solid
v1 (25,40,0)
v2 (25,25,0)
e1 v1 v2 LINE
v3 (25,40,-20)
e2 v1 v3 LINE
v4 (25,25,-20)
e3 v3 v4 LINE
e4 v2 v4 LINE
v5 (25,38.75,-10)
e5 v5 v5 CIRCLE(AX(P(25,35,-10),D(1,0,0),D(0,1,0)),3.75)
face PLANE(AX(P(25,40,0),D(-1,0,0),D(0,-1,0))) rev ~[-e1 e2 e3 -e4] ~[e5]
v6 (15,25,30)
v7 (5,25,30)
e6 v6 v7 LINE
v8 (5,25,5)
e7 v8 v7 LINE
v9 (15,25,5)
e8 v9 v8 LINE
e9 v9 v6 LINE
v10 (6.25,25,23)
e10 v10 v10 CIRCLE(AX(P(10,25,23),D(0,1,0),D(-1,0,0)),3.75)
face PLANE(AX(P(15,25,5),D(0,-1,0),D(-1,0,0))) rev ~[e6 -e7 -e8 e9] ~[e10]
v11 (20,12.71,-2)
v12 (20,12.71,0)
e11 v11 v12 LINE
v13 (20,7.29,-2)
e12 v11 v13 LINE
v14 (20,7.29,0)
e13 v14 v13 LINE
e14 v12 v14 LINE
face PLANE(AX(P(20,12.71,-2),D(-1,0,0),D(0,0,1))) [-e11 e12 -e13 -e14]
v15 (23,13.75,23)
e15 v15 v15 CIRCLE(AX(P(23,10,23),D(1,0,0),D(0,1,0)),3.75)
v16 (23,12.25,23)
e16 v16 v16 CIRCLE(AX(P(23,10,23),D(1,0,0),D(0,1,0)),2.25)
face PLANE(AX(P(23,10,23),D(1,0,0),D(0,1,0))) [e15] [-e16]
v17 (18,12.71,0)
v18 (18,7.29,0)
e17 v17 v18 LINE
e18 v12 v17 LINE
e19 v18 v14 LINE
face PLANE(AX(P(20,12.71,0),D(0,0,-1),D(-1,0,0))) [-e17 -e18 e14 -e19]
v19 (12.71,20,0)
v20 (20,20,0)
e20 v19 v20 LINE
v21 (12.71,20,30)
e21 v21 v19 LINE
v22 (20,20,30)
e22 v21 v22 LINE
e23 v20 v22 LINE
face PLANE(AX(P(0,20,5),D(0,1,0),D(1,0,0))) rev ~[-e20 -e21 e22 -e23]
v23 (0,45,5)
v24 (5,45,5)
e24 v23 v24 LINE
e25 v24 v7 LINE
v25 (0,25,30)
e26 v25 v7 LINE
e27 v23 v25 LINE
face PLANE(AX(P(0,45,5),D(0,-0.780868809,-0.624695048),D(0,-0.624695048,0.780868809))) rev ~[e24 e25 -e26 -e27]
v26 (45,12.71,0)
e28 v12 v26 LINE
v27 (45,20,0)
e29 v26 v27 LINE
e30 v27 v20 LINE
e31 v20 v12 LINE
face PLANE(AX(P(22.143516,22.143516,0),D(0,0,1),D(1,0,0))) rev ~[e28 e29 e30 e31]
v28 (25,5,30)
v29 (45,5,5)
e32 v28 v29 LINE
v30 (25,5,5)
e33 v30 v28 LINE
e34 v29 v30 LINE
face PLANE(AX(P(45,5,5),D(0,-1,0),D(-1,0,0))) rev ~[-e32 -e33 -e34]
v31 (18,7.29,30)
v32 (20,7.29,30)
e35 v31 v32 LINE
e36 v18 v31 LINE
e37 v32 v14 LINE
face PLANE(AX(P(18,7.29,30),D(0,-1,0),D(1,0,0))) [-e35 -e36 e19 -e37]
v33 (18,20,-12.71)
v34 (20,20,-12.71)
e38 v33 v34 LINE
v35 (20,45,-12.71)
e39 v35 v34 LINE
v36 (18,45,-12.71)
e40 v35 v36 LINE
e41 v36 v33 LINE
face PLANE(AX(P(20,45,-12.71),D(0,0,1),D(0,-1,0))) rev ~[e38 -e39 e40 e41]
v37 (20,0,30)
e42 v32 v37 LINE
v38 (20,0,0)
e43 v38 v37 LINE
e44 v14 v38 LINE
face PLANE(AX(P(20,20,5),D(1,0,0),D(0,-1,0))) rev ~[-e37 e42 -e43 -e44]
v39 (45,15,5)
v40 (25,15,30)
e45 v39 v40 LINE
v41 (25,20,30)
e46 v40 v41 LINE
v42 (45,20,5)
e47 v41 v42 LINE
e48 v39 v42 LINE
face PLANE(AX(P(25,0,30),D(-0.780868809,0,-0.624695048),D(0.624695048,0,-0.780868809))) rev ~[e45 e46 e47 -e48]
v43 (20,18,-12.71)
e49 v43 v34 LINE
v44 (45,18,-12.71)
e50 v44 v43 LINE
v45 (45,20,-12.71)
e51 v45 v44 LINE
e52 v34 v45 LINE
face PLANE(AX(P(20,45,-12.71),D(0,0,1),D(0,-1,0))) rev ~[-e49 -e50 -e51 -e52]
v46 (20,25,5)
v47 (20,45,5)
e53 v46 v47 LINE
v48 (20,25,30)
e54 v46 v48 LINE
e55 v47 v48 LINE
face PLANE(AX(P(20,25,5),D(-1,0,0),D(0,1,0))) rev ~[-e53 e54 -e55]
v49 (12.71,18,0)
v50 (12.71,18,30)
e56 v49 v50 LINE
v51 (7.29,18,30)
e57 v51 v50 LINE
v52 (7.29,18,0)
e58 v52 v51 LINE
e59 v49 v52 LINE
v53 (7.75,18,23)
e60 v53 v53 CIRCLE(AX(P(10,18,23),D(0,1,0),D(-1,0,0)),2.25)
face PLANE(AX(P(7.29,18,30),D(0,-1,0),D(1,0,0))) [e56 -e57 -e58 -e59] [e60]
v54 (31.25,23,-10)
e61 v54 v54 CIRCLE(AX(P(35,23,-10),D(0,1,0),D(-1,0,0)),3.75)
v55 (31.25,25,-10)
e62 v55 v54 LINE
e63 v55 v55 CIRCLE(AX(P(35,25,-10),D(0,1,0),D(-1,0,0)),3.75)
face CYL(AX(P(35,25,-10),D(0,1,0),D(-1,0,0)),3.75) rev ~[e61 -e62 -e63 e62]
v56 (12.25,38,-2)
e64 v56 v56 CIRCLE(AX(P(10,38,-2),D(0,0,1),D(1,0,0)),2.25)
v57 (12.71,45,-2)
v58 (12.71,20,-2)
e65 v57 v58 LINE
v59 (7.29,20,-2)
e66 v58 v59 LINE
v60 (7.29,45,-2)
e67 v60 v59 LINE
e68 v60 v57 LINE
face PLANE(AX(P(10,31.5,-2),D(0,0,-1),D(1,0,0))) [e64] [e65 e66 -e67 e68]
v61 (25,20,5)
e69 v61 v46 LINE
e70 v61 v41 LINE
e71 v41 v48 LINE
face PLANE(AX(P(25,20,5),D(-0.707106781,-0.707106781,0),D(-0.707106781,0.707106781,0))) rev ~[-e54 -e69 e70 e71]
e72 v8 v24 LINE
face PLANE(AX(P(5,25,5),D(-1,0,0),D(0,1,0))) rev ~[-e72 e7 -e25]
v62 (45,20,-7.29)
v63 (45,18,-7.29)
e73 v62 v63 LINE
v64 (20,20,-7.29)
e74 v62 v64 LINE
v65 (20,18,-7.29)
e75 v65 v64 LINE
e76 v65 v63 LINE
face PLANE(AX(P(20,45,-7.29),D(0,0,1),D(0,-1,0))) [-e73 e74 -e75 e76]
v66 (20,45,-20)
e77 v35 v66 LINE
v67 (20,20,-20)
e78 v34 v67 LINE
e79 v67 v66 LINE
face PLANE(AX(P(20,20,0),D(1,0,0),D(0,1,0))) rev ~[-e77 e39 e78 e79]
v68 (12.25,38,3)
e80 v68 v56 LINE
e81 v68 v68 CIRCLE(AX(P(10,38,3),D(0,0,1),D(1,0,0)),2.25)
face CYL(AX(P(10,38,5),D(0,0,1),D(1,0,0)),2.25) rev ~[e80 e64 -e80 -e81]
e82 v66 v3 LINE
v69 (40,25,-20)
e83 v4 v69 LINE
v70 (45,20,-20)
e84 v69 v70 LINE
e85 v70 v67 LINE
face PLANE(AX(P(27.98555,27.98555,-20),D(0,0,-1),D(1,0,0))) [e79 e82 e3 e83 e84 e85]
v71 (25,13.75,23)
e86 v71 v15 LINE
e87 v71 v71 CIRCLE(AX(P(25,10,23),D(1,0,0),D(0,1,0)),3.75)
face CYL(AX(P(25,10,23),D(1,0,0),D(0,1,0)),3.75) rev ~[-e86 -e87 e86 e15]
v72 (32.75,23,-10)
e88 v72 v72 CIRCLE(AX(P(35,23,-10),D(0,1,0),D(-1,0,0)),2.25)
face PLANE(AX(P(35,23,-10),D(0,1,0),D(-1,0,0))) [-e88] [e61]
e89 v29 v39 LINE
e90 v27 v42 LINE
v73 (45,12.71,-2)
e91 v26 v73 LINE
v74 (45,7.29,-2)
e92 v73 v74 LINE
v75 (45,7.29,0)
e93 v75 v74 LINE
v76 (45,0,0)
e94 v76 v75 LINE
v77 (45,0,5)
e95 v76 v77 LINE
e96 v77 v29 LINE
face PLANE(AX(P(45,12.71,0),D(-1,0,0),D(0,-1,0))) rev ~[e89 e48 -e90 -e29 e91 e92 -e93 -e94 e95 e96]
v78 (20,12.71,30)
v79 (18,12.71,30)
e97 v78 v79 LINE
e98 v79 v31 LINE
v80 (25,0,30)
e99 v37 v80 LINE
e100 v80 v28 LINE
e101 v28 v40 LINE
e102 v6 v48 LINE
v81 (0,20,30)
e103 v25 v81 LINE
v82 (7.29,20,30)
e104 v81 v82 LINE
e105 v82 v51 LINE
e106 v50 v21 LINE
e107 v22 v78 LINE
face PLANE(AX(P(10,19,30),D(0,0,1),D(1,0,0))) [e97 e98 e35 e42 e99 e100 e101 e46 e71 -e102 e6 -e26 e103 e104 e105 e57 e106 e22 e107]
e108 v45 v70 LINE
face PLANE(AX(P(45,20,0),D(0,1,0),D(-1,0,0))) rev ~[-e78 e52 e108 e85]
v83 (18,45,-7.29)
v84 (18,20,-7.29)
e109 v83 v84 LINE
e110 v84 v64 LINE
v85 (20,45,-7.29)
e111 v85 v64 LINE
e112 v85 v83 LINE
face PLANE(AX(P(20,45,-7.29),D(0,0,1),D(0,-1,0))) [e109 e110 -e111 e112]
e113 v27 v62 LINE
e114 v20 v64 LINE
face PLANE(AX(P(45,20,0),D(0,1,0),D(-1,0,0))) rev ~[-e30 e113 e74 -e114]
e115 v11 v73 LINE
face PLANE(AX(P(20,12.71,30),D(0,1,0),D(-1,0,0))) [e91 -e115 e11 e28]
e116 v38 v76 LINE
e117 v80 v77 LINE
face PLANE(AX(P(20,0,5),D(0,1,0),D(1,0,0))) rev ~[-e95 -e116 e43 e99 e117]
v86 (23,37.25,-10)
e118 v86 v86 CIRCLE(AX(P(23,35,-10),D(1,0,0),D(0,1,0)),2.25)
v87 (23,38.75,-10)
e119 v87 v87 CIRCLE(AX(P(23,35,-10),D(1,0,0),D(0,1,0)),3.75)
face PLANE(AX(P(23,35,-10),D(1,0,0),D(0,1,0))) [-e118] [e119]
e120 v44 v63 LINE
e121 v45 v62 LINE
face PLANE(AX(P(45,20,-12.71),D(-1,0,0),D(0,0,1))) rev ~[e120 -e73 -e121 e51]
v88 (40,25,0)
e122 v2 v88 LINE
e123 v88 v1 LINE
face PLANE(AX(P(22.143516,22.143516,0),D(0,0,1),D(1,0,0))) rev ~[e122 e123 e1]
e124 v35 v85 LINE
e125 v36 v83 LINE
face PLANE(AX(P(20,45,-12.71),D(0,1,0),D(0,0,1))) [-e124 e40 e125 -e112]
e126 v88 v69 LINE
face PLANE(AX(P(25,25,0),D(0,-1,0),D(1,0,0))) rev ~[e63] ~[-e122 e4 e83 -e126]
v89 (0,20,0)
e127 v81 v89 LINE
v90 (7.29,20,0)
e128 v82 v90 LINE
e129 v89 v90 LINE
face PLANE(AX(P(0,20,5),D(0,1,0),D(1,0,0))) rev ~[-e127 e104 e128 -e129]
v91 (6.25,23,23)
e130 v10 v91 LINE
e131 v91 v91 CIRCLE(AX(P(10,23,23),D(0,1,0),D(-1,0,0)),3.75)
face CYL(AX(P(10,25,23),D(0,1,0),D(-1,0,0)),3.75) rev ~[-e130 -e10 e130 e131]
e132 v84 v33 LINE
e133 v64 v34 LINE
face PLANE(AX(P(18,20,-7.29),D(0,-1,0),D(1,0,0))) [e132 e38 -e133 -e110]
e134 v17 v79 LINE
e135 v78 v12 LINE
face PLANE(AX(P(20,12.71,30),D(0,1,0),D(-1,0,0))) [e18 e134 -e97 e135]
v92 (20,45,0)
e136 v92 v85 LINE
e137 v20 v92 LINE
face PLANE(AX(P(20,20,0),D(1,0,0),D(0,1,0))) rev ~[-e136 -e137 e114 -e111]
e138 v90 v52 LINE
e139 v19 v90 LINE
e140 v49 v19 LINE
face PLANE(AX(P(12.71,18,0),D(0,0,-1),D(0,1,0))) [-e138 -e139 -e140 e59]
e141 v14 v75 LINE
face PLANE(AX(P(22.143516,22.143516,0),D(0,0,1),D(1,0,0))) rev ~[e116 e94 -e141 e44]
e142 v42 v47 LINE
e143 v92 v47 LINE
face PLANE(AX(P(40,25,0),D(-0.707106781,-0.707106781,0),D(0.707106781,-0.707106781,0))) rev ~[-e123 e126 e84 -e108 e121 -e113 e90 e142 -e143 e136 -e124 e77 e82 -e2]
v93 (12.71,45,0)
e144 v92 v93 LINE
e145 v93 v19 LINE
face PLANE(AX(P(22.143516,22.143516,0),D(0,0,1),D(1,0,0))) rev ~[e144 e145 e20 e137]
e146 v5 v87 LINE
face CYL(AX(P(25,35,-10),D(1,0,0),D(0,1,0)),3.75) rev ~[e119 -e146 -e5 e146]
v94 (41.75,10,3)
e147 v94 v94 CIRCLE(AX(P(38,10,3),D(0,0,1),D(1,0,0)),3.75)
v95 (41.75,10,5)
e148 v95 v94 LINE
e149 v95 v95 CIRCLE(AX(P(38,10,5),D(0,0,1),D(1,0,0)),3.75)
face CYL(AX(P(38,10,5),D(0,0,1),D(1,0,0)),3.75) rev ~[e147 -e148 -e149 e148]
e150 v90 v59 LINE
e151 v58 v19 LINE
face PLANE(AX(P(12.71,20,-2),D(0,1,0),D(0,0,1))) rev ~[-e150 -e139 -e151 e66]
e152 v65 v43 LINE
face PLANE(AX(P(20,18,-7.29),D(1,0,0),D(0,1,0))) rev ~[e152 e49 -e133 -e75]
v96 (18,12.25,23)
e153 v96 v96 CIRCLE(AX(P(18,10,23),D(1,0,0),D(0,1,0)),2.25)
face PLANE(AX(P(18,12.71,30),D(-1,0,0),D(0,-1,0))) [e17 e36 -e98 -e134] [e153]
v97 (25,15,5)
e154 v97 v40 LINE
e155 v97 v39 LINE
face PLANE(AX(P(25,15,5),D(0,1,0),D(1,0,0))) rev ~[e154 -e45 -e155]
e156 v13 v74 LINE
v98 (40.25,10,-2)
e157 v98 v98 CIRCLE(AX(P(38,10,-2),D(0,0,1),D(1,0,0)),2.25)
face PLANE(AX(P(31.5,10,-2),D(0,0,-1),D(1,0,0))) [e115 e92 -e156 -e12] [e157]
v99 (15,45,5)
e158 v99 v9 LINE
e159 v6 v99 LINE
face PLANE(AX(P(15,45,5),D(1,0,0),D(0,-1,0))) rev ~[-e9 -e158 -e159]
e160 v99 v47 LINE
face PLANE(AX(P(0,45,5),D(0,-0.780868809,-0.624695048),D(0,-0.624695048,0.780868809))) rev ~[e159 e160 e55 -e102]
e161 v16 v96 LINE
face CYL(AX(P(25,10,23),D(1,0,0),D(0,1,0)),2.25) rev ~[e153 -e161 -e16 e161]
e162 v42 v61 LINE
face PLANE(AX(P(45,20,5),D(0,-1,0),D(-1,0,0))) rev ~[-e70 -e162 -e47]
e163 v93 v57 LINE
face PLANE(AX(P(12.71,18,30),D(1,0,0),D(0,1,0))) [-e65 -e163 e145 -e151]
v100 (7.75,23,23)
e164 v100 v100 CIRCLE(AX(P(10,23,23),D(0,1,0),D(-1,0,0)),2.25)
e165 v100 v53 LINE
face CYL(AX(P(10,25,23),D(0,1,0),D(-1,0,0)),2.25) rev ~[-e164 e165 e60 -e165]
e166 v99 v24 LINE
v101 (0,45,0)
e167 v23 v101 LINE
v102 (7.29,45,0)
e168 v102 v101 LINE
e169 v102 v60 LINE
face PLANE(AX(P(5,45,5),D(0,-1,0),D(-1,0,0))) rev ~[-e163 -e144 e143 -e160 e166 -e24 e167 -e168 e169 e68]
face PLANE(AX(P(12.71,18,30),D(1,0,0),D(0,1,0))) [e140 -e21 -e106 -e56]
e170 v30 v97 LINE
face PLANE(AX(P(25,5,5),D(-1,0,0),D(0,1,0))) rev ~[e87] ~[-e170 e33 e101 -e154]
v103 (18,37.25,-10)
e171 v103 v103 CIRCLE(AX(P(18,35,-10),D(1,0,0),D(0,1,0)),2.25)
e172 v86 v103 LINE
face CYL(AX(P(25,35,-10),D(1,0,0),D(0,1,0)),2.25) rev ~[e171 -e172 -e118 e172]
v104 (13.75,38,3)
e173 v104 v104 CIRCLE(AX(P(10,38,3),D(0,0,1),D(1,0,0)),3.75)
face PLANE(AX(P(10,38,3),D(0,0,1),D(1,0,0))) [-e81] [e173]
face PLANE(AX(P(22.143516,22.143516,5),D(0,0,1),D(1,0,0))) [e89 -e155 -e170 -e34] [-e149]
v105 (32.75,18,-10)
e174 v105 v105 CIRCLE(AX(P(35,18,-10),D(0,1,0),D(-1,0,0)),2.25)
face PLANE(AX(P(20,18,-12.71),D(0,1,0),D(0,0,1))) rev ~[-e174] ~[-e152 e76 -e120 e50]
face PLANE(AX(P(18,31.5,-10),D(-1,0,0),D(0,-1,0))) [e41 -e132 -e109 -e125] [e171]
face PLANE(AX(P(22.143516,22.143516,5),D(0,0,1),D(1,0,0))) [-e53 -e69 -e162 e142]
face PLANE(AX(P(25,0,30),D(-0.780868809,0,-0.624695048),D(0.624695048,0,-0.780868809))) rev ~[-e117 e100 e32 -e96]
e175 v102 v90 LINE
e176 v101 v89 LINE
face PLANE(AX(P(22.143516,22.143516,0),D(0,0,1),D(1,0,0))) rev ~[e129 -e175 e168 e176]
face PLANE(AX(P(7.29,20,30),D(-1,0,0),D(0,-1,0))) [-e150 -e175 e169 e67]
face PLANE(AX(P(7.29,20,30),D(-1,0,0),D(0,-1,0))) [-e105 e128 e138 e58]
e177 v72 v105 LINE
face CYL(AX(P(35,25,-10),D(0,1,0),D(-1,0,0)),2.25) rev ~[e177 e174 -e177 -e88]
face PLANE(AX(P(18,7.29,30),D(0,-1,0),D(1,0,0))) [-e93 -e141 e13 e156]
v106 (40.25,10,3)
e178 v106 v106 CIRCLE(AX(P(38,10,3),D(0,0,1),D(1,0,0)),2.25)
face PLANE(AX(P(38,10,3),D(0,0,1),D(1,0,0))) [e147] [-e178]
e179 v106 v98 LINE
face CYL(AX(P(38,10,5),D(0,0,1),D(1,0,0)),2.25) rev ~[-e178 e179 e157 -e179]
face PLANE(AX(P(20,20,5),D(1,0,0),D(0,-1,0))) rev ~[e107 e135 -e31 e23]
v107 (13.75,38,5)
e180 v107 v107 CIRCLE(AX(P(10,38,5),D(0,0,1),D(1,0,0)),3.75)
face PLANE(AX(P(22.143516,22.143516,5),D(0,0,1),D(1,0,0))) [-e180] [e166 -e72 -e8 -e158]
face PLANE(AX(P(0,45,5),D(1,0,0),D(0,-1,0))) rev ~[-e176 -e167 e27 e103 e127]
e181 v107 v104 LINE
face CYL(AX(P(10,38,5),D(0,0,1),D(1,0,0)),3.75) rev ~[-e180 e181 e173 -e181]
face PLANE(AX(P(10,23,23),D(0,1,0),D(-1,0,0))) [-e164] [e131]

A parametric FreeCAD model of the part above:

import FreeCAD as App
import Part
import Sketcher
from FreeCAD import Vector
Q = App.Units.Quantity

doc = App.newDocument("Part")
body = doc.addObject("PartDesign::Body", "Body")

# Sketch on XY plane
sketch1 = body.newObject("Sketcher::SketchObject", "Sketch")
sketch1.AttachmentSupport = (doc.getObject("XY_Plane"), [""])
sketch1.MapMode = "FlatFace"
sketch1.addGeometry(Part.LineSegment(Vector(0, 20, 0), Vector(20, 20, 0)), False)
sketch1.addGeometry(Part.LineSegment(Vector(20, 20, 0), Vector(20, 0, 0)), False)
sketch1.addGeometry(Part.LineSegment(Vector(20, 0, 0), Vector(45, 0, 0)), False)
sketch1.addGeometry(Part.LineSegment(Vector(45, 0, 0), Vector(45, 20, 0)), False)
sketch1.addGeometry(Part.LineSegment(Vector(45, 20, 0), Vector(20, 45, 0)), False)
sketch1.addGeometry(Part.LineSegment(Vector(20, 45, 0), Vector(0, 45, 0)), False)
sketch1.addGeometry(Part.LineSegment(Vector(0, 45, 0), Vector(0, 20, 0)), False)
sketch1.addConstraint(Sketcher.Constraint("Coincident", 0, 2, 1, 1))
sketch1.addConstraint(Sketcher.Constraint("Coincident", 1, 2, 2, 1))
sketch1.addConstraint(Sketcher.Constraint("Coincident", 2, 2, 3, 1))
sketch1.addConstraint(Sketcher.Constraint("Coincident", 3, 2, 4, 1))
sketch1.addConstraint(Sketcher.Constraint("Coincident", 4, 2, 5, 1))
sketch1.addConstraint(Sketcher.Constraint("Coincident", 5, 2, 6, 1))
sketch1.addConstraint(Sketcher.Constraint("Coincident", 6, 2, 0, 1))
sketch1.addConstraint(Sketcher.Constraint("Horizontal", 0))
sketch1.addConstraint(Sketcher.Constraint("Vertical", 1))
sketch1.addConstraint(Sketcher.Constraint("Horizontal", 2))
sketch1.addConstraint(Sketcher.Constraint("Vertical", 3))
sketch1.addConstraint(Sketcher.Constraint("Horizontal", 5))
sketch1.addConstraint(Sketcher.Constraint("Vertical", 6))
sketch1.addConstraint(Sketcher.Constraint("PointOnObject", 1, 2, -1))
sketch1.addConstraint(Sketcher.Constraint("PointOnObject", 5, 2, -2))
sketch1.addConstraint(Sketcher.Constraint("Horizontal", 0, 2, 3, 2))
sketch1.addConstraint(Sketcher.Constraint("Vertical", 1, 2, 4, 2))
sketch1.addConstraint(Sketcher.Constraint("Equal", 5, 1))
sketch1.addConstraint(Sketcher.Constraint("Equal", 2, 6))
sketch1.addConstraint(Sketcher.Constraint("DistanceX", 0, 1, 0, 2, Q("20 mm")))
sketch1.addConstraint(Sketcher.Constraint("DistanceX", 2, 1, 2, 2, Q("25 mm")))
pad1 = body.newObject("PartDesign::Pad", "Pad")
pad1.Profile = sketch1
pad1.Length = 5

# Sketch on XY plane
sketch2 = body.newObject("Sketcher::SketchObject", "Sketch001")
sketch2.AttachmentSupport = (doc.getObject("XY_Plane"), [""])
sketch2.MapMode = "FlatFace"
sketch2.AttachmentOffset = App.Placement(Vector(0, 0, 5), App.Rotation())
sketch2.addGeometry(Part.LineSegment(Vector(0, 20, 0), Vector(20, 20, 0)), False)
sketch2.addGeometry(Part.LineSegment(Vector(20, 20, 0), Vector(20, 0, 0)), False)
sketch2.addGeometry(Part.LineSegment(Vector(20, 0, 0), Vector(45, 0, 0)), False)
sketch2.addGeometry(Part.LineSegment(Vector(45, 0, 0), Vector(45, 5, 0)), False)
sketch2.addGeometry(Part.LineSegment(Vector(45, 5, 0), Vector(25, 5, 0)), False)
sketch2.addGeometry(Part.LineSegment(Vector(25, 5, 0), Vector(25, 15, 0)), False)
sketch2.addGeometry(Part.LineSegment(Vector(25, 15, 0), Vector(45, 15, 0)), False)
sketch2.addGeometry(Part.LineSegment(Vector(45, 15, 0), Vector(45, 20, 0)), False)
sketch2.addGeometry(Part.LineSegment(Vector(45, 20, 0), Vector(25, 20, 0)), False)
sketch2.addGeometry(Part.LineSegment(Vector(25, 20, 0), Vector(20, 25, 0)), False)
sketch2.addGeometry(Part.LineSegment(Vector(20, 25, 0), Vector(20, 45, 0)), False)
sketch2.addGeometry(Part.LineSegment(Vector(20, 45, 0), Vector(15, 45, 0)), False)
sketch2.addGeometry(Part.LineSegment(Vector(15, 45, 0), Vector(15, 25, 0)), False)
sketch2.addGeometry(Part.LineSegment(Vector(15, 25, 0), Vector(5, 25, 0)), False)
sketch2.addGeometry(Part.LineSegment(Vector(5, 25, 0), Vector(5, 45, 0)), False)
sketch2.addGeometry(Part.LineSegment(Vector(5, 45, 0), Vector(0, 45, 0)), False)
sketch2.addGeometry(Part.LineSegment(Vector(0, 45, 0), Vector(0, 20, 0)), False)
sketch2.addConstraint(Sketcher.Constraint("Coincident", 0, 2, 1, 1))
sketch2.addConstraint(Sketcher.Constraint("Coincident", 1, 2, 2, 1))
sketch2.addConstraint(Sketcher.Constraint("Coincident", 2, 2, 3, 1))
sketch2.addConstraint(Sketcher.Constraint("Coincident", 3, 2, 4, 1))
sketch2.addConstraint(Sketcher.Constraint("Coincident", 4, 2, 5, 1))
sketch2.addConstraint(Sketcher.Constraint("Coincident", 5, 2, 6, 1))
sketch2.addConstraint(Sketcher.Constraint("Coincident", 6, 2, 7, 1))
sketch2.addConstraint(Sketcher.Constraint("Coincident", 7, 2, 8, 1))
sketch2.addConstraint(Sketcher.Constraint("Coincident", 8, 2, 9, 1))
sketch2.addConstraint(Sketcher.Constraint("Coincident", 9, 2, 10, 1))
sketch2.addConstraint(Sketcher.Constraint("Coincident", 10, 2, 11, 1))
sketch2.addConstraint(Sketcher.Constraint("Coincident", 11, 2, 12, 1))
sketch2.addConstraint(Sketcher.Constraint("Coincident", 12, 2, 13, 1))
sketch2.addConstraint(Sketcher.Constraint("Coincident", 13, 2, 14, 1))
sketch2.addConstraint(Sketcher.Constraint("Coincident", 14, 2, 15, 1))
sketch2.addConstraint(Sketcher.Constraint("Coincident", 15, 2, 16, 1))
sketch2.addConstraint(Sketcher.Constraint("Coincident", 16, 2, 0, 1))
sketch2.addConstraint(Sketcher.Constraint("Horizontal", 0))
sketch2.addConstraint(Sketcher.Constraint("Vertical", 1))
sketch2.addConstraint(Sketcher.Constraint("Horizontal", 2))
sketch2.addConstraint(Sketcher.Constraint("Vertical", 3))
sketch2.addConstraint(Sketcher.Constraint("Horizontal", 4))
sketch2.addConstraint(Sketcher.Constraint("Vertical", 5))
sketch2.addConstraint(Sketcher.Constraint("Horizontal", 6))
sketch2.addConstraint(Sketcher.Constraint("Vertical", 7))
sketch2.addConstraint(Sketcher.Constraint("Horizontal", 8))
sketch2.addConstraint(Sketcher.Constraint("Vertical", 10))
sketch2.addConstraint(Sketcher.Constraint("Horizontal", 11))
sketch2.addConstraint(Sketcher.Constraint("Vertical", 12))
sketch2.addConstraint(Sketcher.Constraint("Horizontal", 13))
sketch2.addConstraint(Sketcher.Constraint("Vertical", 14))
sketch2.addConstraint(Sketcher.Constraint("Horizontal", 15))
sketch2.addConstraint(Sketcher.Constraint("Vertical", 16))
sketch2.addConstraint(Sketcher.Constraint("PointOnObject", 1, 2, -1))
sketch2.addConstraint(Sketcher.Constraint("PointOnObject", 15, 2, -2))
sketch2.addConstraint(Sketcher.Constraint("Horizontal", 0, 2, 7, 2))
sketch2.addConstraint(Sketcher.Constraint("Horizontal", 9, 2, 12, 2))
sketch2.addConstraint(Sketcher.Constraint("Horizontal", 11, 2, 14, 2))
sketch2.addConstraint(Sketcher.Constraint("Vertical", 3, 2, 6, 2))
sketch2.addConstraint(Sketcher.Constraint("Vertical", 5, 2, 8, 2))
sketch2.addConstraint(Sketcher.Constraint("Vertical", 1, 2, 9, 2))
sketch2.addConstraint(Sketcher.Constraint("Equal", 0, 4))
sketch2.addConstraint(Sketcher.Constraint("Equal", 11, 15))
sketch2.addConstraint(Sketcher.Constraint("Equal", 8, 1))
sketch2.addConstraint(Sketcher.Constraint("Equal", 15, 3))
sketch2.addConstraint(Sketcher.Constraint("Equal", 13, 5))
sketch2.addConstraint(Sketcher.Constraint("Equal", 1, 10))
sketch2.addConstraint(Sketcher.Constraint("Equal", 2, 16))
sketch2.addConstraint(Sketcher.Constraint("DistanceX", 0, 1, 0, 2, Q("20 mm")))
sketch2.addConstraint(Sketcher.Constraint("DistanceX", 2, 1, 2, 2, Q("25 mm")))
sketch2.addConstraint(Sketcher.Constraint("DistanceX", 11, 2, 11, 1, Q("5 mm")))
pad2 = body.newObject("PartDesign::Pad", "Pad001")
pad2.Profile = sketch2
pad2.Length = 25

# Sketch on XY plane
sketch3 = body.newObject("Sketcher::SketchObject", "Sketch002")
sketch3.AttachmentSupport = (doc.getObject("XY_Plane"), [""])
sketch3.MapMode = "FlatFace"
sketch3.AttachmentOffset = App.Placement(Vector(0, 0, 5), App.Rotation())
sketch3.addGeometry(Part.LineSegment(Vector(0, 20, 0), Vector(20, 20, 0)), False)
sketch3.addGeometry(Part.LineSegment(Vector(20, 20, 0), Vector(20, 0, 0)), False)
sketch3.addGeometry(Part.LineSegment(Vector(20, 0, 0), Vector(45, 0, 0)), False)
sketch3.addGeometry(Part.LineSegment(Vector(45, 0, 0), Vector(45, 5, 0)), False)
sketch3.addGeometry(Part.LineSegment(Vector(45, 5, 0), Vector(25, 5, 0)), False)
sketch3.addGeometry(Part.LineSegment(Vector(25, 5, 0), Vector(25, 15, 0)), False)
sketch3.addGeometry(Part.LineSegment(Vector(25, 15, 0), Vector(45, 15, 0)), False)
sketch3.addGeometry(Part.LineSegment(Vector(45, 15, 0), Vector(45, 20, 0)), False)
sketch3.addGeometry(Part.LineSegment(Vector(45, 20, 0), Vector(25, 20, 0)), False)
sketch3.addGeometry(Part.LineSegment(Vector(25, 20, 0), Vector(20, 25, 0)), False)
sketch3.addGeometry(Part.LineSegment(Vector(20, 25, 0), Vector(20, 45, 0)), False)
sketch3.addGeometry(Part.LineSegment(Vector(20, 45, 0), Vector(15, 45, 0)), False)
sketch3.addGeometry(Part.LineSegment(Vector(15, 45, 0), Vector(15, 25, 0)), False)
sketch3.addGeometry(Part.LineSegment(Vector(15, 25, 0), Vector(5, 25, 0)), False)
sketch3.addGeometry(Part.LineSegment(Vector(5, 25, 0), Vector(5, 45, 0)), False)
sketch3.addGeometry(Part.LineSegment(Vector(5, 45, 0), Vector(0, 45, 0)), False)
sketch3.addGeometry(Part.LineSegment(Vector(0, 45, 0), Vector(0, 20, 0)), False)
sketch3.addConstraint(Sketcher.Constraint("Coincident", 0, 2, 1, 1))
sketch3.addConstraint(Sketcher.Constraint("Coincident", 1, 2, 2, 1))
sketch3.addConstraint(Sketcher.Constraint("Coincident", 2, 2, 3, 1))
sketch3.addConstraint(Sketcher.Constraint("Coincident", 3, 2, 4, 1))
sketch3.addConstraint(Sketcher.Constraint("Coincident", 4, 2, 5, 1))
sketch3.addConstraint(Sketcher.Constraint("Coincident", 5, 2, 6, 1))
sketch3.addConstraint(Sketcher.Constraint("Coincident", 6, 2, 7, 1))
sketch3.addConstraint(Sketcher.Constraint("Coincident", 7, 2, 8, 1))
sketch3.addConstraint(Sketcher.Constraint("Coincident", 8, 2, 9, 1))
sketch3.addConstraint(Sketcher.Constraint("Coincident", 9, 2, 10, 1))
sketch3.addConstraint(Sketcher.Constraint("Coincident", 10, 2, 11, 1))
sketch3.addConstraint(Sketcher.Constraint("Coincident", 11, 2, 12, 1))
sketch3.addConstraint(Sketcher.Constraint("Coincident", 12, 2, 13, 1))
sketch3.addConstraint(Sketcher.Constraint("Coincident", 13, 2, 14, 1))
sketch3.addConstraint(Sketcher.Constraint("Coincident", 14, 2, 15, 1))
sketch3.addConstraint(Sketcher.Constraint("Coincident", 15, 2, 16, 1))
sketch3.addConstraint(Sketcher.Constraint("Coincident", 16, 2, 0, 1))
sketch3.addConstraint(Sketcher.Constraint("Horizontal", 0))
sketch3.addConstraint(Sketcher.Constraint("Vertical", 1))
sketch3.addConstraint(Sketcher.Constraint("Horizontal", 2))
sketch3.addConstraint(Sketcher.Constraint("Vertical", 3))
sketch3.addConstraint(Sketcher.Constraint("Horizontal", 4))
sketch3.addConstraint(Sketcher.Constraint("Vertical", 5))
sketch3.addConstraint(Sketcher.Constraint("Horizontal", 6))
sketch3.addConstraint(Sketcher.Constraint("Vertical", 7))
sketch3.addConstraint(Sketcher.Constraint("Horizontal", 8))
sketch3.addConstraint(Sketcher.Constraint("Vertical", 10))
sketch3.addConstraint(Sketcher.Constraint("Horizontal", 11))
sketch3.addConstraint(Sketcher.Constraint("Vertical", 12))
sketch3.addConstraint(Sketcher.Constraint("Horizontal", 13))
sketch3.addConstraint(Sketcher.Constraint("Vertical", 14))
sketch3.addConstraint(Sketcher.Constraint("Horizontal", 15))
sketch3.addConstraint(Sketcher.Constraint("Vertical", 16))
sketch3.addConstraint(Sketcher.Constraint("PointOnObject", 1, 2, -1))
sketch3.addConstraint(Sketcher.Constraint("PointOnObject", 15, 2, -2))
sketch3.addConstraint(Sketcher.Constraint("Horizontal", 0, 2, 7, 2))
sketch3.addConstraint(Sketcher.Constraint("Horizontal", 9, 2, 12, 2))
sketch3.addConstraint(Sketcher.Constraint("Horizontal", 11, 2, 14, 2))
sketch3.addConstraint(Sketcher.Constraint("Vertical", 3, 2, 6, 2))
sketch3.addConstraint(Sketcher.Constraint("Vertical", 5, 2, 8, 2))
sketch3.addConstraint(Sketcher.Constraint("Vertical", 1, 2, 9, 2))
sketch3.addConstraint(Sketcher.Constraint("Equal", 0, 4))
sketch3.addConstraint(Sketcher.Constraint("Equal", 11, 15))
sketch3.addConstraint(Sketcher.Constraint("Equal", 8, 1))
sketch3.addConstraint(Sketcher.Constraint("Equal", 15, 3))
sketch3.addConstraint(Sketcher.Constraint("Equal", 13, 5))
sketch3.addConstraint(Sketcher.Constraint("Equal", 1, 10))
sketch3.addConstraint(Sketcher.Constraint("Equal", 2, 16))
sketch3.addConstraint(Sketcher.Constraint("DistanceX", 0, 1, 0, 2, Q("20 mm")))
sketch3.addConstraint(Sketcher.Constraint("DistanceX", 2, 1, 2, 2, Q("25 mm")))
sketch3.addConstraint(Sketcher.Constraint("DistanceX", 11, 2, 11, 1, Q("5 mm")))
pad3 = body.newObject("PartDesign::Pad", "Pad002")
pad3.Profile = sketch3
pad3.Length = 25

# Sketch on YZ plane
sketch4 = body.newObject("Sketcher::SketchObject", "Sketch003")
sketch4.AttachmentSupport = (doc.getObject("YZ_Plane"), [""])
sketch4.MapMode = "FlatFace"
sketch4.addGeometry(Part.LineSegment(Vector(45, 30, 0), Vector(45, 5, 0)), False)
sketch4.addGeometry(Part.LineSegment(Vector(45, 5, 0), Vector(25, 30, 0)), False)
sketch4.addGeometry(Part.LineSegment(Vector(25, 30, 0), Vector(45, 30, 0)), False)
sketch4.addConstraint(Sketcher.Constraint("Coincident", 0, 2, 1, 1))
sketch4.addConstraint(Sketcher.Constraint("Coincident", 1, 2, 2, 1))
sketch4.addConstraint(Sketcher.Constraint("Coincident", 2, 2, 0, 1))
sketch4.addConstraint(Sketcher.Constraint("Vertical", 0))
sketch4.addConstraint(Sketcher.Constraint("Horizontal", 2))
sketch4.addConstraint(Sketcher.Constraint("DistanceX", 2, 1, 2, 2, Q("20 mm")))
sketch4.addConstraint(Sketcher.Constraint("DistanceY", 0, 2, 0, 1, Q("25 mm")))
sketch4.addConstraint(Sketcher.Constraint("DistanceX", -1, 1, 0, 2, Q("45 mm")))
sketch4.addConstraint(Sketcher.Constraint("DistanceY", -1, 1, 0, 2, Q("5 mm")))
pocket1 = body.newObject("PartDesign::Pocket", "Pocket")
pocket1.Profile = sketch4
pocket1.Type = "ThroughAll"
pocket1.Reversed = True

# Sketch on XY plane
sketch5 = body.newObject("Sketcher::SketchObject", "Sketch004")
sketch5.AttachmentSupport = (doc.getObject("XY_Plane"), [""])
sketch5.MapMode = "FlatFace"
sketch5.addGeometry(Part.LineSegment(Vector(18, 7.29, 0), Vector(18, 12.71, 0)), False)
sketch5.addGeometry(Part.LineSegment(Vector(18, 12.71, 0), Vector(45, 12.71, 0)), False)
sketch5.addGeometry(Part.LineSegment(Vector(45, 12.71, 0), Vector(45, 7.29, 0)), False)
sketch5.addGeometry(Part.LineSegment(Vector(45, 7.29, 0), Vector(18, 7.29, 0)), False)
sketch5.addGeometry(Part.LineSegment(Vector(7.29, 18, 0), Vector(7.29, 45, 0)), False)
sketch5.addGeometry(Part.LineSegment(Vector(7.29, 45, 0), Vector(12.71, 45, 0)), False)
sketch5.addGeometry(Part.LineSegment(Vector(12.71, 45, 0), Vector(12.71, 18, 0)), False)
sketch5.addGeometry(Part.LineSegment(Vector(12.71, 18, 0), Vector(7.29, 18, 0)), False)
sketch5.addConstraint(Sketcher.Constraint("Coincident", 0, 2, 1, 1))
sketch5.addConstraint(Sketcher.Constraint("Coincident", 1, 2, 2, 1))
sketch5.addConstraint(Sketcher.Constraint("Coincident", 2, 2, 3, 1))
sketch5.addConstraint(Sketcher.Constraint("Coincident", 3, 2, 0, 1))
sketch5.addConstraint(Sketcher.Constraint("Coincident", 4, 2, 5, 1))
sketch5.addConstraint(Sketcher.Constraint("Coincident", 5, 2, 6, 1))
sketch5.addConstraint(Sketcher.Constraint("Coincident", 6, 2, 7, 1))
sketch5.addConstraint(Sketcher.Constraint("Coincident", 7, 2, 4, 1))
sketch5.addConstraint(Sketcher.Constraint("Vertical", 0))
sketch5.addConstraint(Sketcher.Constraint("Horizontal", 1))
sketch5.addConstraint(Sketcher.Constraint("Vertical", 2))
sketch5.addConstraint(Sketcher.Constraint("Horizontal", 3))
sketch5.addConstraint(Sketcher.Constraint("Vertical", 4))
sketch5.addConstraint(Sketcher.Constraint("Horizontal", 5))
sketch5.addConstraint(Sketcher.Constraint("Vertical", 6))
sketch5.addConstraint(Sketcher.Constraint("Horizontal", 7))
sketch5.addConstraint(Sketcher.Constraint("Equal", 7, 0))
sketch5.addConstraint(Sketcher.Constraint("Equal", 3, 4))
sketch5.addConstraint(Sketcher.Constraint("DistanceX", 1, 1, 1, 2, Q("27 mm")))
sketch5.addConstraint(Sketcher.Constraint("DistanceX", -1, 1, 0, 2, Q("18 mm")))
sketch5.addConstraint(Sketcher.Constraint("DistanceY", -1, 1, 4, 2, Q("45 mm")))
sketch5.addConstraint(Sketcher.Constraint("DistanceX", 5, 1, 5, 2, Q("5.42 mm")))
sketch5.addConstraint(Sketcher.Constraint("DistanceY", -1, 1, 0, 2, Q("12.71 mm")))
sketch5.addConstraint(Sketcher.Constraint("DistanceX", -1, 1, 4, 2, Q("7.29 mm")))
pad4 = body.newObject("PartDesign::Pad", "Pad003")
pad4.Profile = sketch5
pad4.Length = 2
pad4.Reversed = True

# Sketch on XZ plane
sketch6 = body.newObject("Sketcher::SketchObject", "Sketch005")
sketch6.AttachmentSupport = (doc.getObject("XZ_Plane"), [""])
sketch6.MapMode = "FlatFace"
sketch6.addGeometry(Part.LineSegment(Vector(45, 30, 0), Vector(25, 30, 0)), False)
sketch6.addGeometry(Part.LineSegment(Vector(25, 30, 0), Vector(45, 5, 0)), False)
sketch6.addGeometry(Part.LineSegment(Vector(45, 5, 0), Vector(45, 30, 0)), False)
sketch6.addConstraint(Sketcher.Constraint("Coincident", 0, 2, 1, 1))
sketch6.addConstraint(Sketcher.Constraint("Coincident", 1, 2, 2, 1))
sketch6.addConstraint(Sketcher.Constraint("Coincident", 2, 2, 0, 1))
sketch6.addConstraint(Sketcher.Constraint("Horizontal", 0))
sketch6.addConstraint(Sketcher.Constraint("Vertical", 2))
sketch6.addConstraint(Sketcher.Constraint("DistanceX", 0, 2, 0, 1, Q("20 mm")))
sketch6.addConstraint(Sketcher.Constraint("DistanceY", 2, 1, 2, 2, Q("25 mm")))
sketch6.addConstraint(Sketcher.Constraint("DistanceX", -1, 1, 0, 2, Q("25 mm")))
sketch6.addConstraint(Sketcher.Constraint("DistanceY", -1, 1, 0, 2, Q("30 mm")))
pocket2 = body.newObject("PartDesign::Pocket", "Pocket001")
pocket2.Profile = sketch6
pocket2.Type = "ThroughAll"

# Sketch on XY plane
sketch7 = body.newObject("Sketcher::SketchObject", "Sketch006")
sketch7.AttachmentSupport = (doc.getObject("XY_Plane"), [""])
sketch7.MapMode = "FlatFace"
sketch7.AttachmentOffset = App.Placement(Vector(0, 0, 30), App.Rotation())
sketch7.addGeometry(Part.LineSegment(Vector(12.71, 20, 0), Vector(7.29, 20, 0)), False)
sketch7.addGeometry(Part.LineSegment(Vector(7.29, 20, 0), Vector(7.29, 18, 0)), False)
sketch7.addGeometry(Part.LineSegment(Vector(7.29, 18, 0), Vector(12.71, 18, 0)), False)
sketch7.addGeometry(Part.LineSegment(Vector(12.71, 18, 0), Vector(12.71, 20, 0)), False)
sketch7.addGeometry(Part.LineSegment(Vector(20, 7.29, 0), Vector(20, 12.71, 0)), False)
sketch7.addGeometry(Part.LineSegment(Vector(20, 12.71, 0), Vector(18, 12.71, 0)), False)
sketch7.addGeometry(Part.LineSegment(Vector(18, 12.71, 0), Vector(18, 7.29, 0)), False)
sketch7.addGeometry(Part.LineSegment(Vector(18, 7.29, 0), Vector(20, 7.29, 0)), False)
sketch7.addConstraint(Sketcher.Constraint("Coincident", 0, 2, 1, 1))
sketch7.addConstraint(Sketcher.Constraint("Coincident", 1, 2, 2, 1))
sketch7.addConstraint(Sketcher.Constraint("Coincident", 2, 2, 3, 1))
sketch7.addConstraint(Sketcher.Constraint("Coincident", 3, 2, 0, 1))
sketch7.addConstraint(Sketcher.Constraint("Coincident", 4, 2, 5, 1))
sketch7.addConstraint(Sketcher.Constraint("Coincident", 5, 2, 6, 1))
sketch7.addConstraint(Sketcher.Constraint("Coincident", 6, 2, 7, 1))
sketch7.addConstraint(Sketcher.Constraint("Coincident", 7, 2, 4, 1))
sketch7.addConstraint(Sketcher.Constraint("Horizontal", 0))
sketch7.addConstraint(Sketcher.Constraint("Vertical", 1))
sketch7.addConstraint(Sketcher.Constraint("Horizontal", 2))
sketch7.addConstraint(Sketcher.Constraint("Vertical", 3))
sketch7.addConstraint(Sketcher.Constraint("Vertical", 4))
sketch7.addConstraint(Sketcher.Constraint("Horizontal", 5))
sketch7.addConstraint(Sketcher.Constraint("Vertical", 6))
sketch7.addConstraint(Sketcher.Constraint("Horizontal", 7))
sketch7.addConstraint(Sketcher.Constraint("Equal", 7, 1))
sketch7.addConstraint(Sketcher.Constraint("Equal", 2, 4))
sketch7.addConstraint(Sketcher.Constraint("DistanceX", 5, 2, 5, 1, Q("2 mm")))
sketch7.addConstraint(Sketcher.Constraint("DistanceY", -1, 1, 0, 2, Q("20 mm")))
sketch7.addConstraint(Sketcher.Constraint("DistanceX", -1, 1, 4, 2, Q("20 mm")))
sketch7.addConstraint(Sketcher.Constraint("DistanceX", 0, 2, 0, 1, Q("5.42 mm")))
sketch7.addConstraint(Sketcher.Constraint("DistanceX", -1, 1, 0, 2, Q("7.29 mm")))
sketch7.addConstraint(Sketcher.Constraint("DistanceY", -1, 1, 4, 2, Q("12.71 mm")))
pad5 = body.newObject("PartDesign::Pad", "Pad004")
pad5.Profile = sketch7
pad5.Length = 30
pad5.Reversed = True

# Sketch on XY plane
sketch8 = body.newObject("Sketcher::SketchObject", "Sketch007")
sketch8.AttachmentSupport = (doc.getObject("XY_Plane"), [""])
sketch8.MapMode = "FlatFace"
sketch8.AttachmentOffset = App.Placement(Vector(0, 0, 5), App.Rotation())
sketch8.addGeometry(Part.Circle(Vector(10, 38, 0), Vector(0, 0, 1), 2.25), False)
sketch8.addGeometry(Part.Circle(Vector(38, 10, 0), Vector(0, 0, 1), 2.25), False)
sketch8.addConstraint(Sketcher.Constraint("Equal", 0, 1))
sketch8.addConstraint(Sketcher.Constraint("Diameter", 0, Q("4.5 mm")))
sketch8.addConstraint(Sketcher.Constraint("DistanceX", -1, 1, 0, 3, Q("10 mm")))
sketch8.addConstraint(Sketcher.Constraint("DistanceY", -1, 1, 0, 3, Q("38 mm")))
sketch8.addConstraint(Sketcher.Constraint("DistanceX", -1, 1, 1, 3, Q("38 mm")))
sketch8.addConstraint(Sketcher.Constraint("DistanceY", -1, 1, 1, 3, Q("10 mm")))
pocket3 = body.newObject("PartDesign::Pocket", "Pocket002")
pocket3.Profile = sketch8
pocket3.Type = "ThroughAll"

# Sketch on XZ plane
sketch9 = body.newObject("Sketcher::SketchObject", "Sketch008")
sketch9.AttachmentSupport = (doc.getObject("XZ_Plane"), [""])
sketch9.MapMode = "FlatFace"
sketch9.AttachmentOffset = App.Placement(Vector(0, 0, -25), App.Rotation())
sketch9.addGeometry(Part.Circle(Vector(10, 23, 0), Vector(0, 0, 1), 2.25), False)
sketch9.addConstraint(Sketcher.Constraint("Diameter", 0, Q("4.5 mm")))
sketch9.addConstraint(Sketcher.Constraint("DistanceX", -1, 1, 0, 3, Q("10 mm")))
sketch9.addConstraint(Sketcher.Constraint("DistanceY", -1, 1, 0, 3, Q("23 mm")))
pocket4 = body.newObject("PartDesign::Pocket", "Pocket003")
pocket4.Profile = sketch9
pocket4.Type = "ThroughAll"
pocket4.Reversed = True

# Sketch on YZ plane
sketch10 = body.newObject("Sketcher::SketchObject", "Sketch009")
sketch10.AttachmentSupport = (doc.getObject("YZ_Plane"), [""])
sketch10.MapMode = "FlatFace"
sketch10.AttachmentOffset = App.Placement(Vector(0, 0, 25), App.Rotation())
sketch10.addGeometry(Part.Circle(Vector(10, 23, 0), Vector(0, 0, 1), 2.25), False)
sketch10.addConstraint(Sketcher.Constraint("Diameter", 0, Q("4.5 mm")))
sketch10.addConstraint(Sketcher.Constraint("DistanceX", -1, 1, 0, 3, Q("10 mm")))
sketch10.addConstraint(Sketcher.Constraint("DistanceY", -1, 1, 0, 3, Q("23 mm")))
pocket5 = body.newObject("PartDesign::Pocket", "Pocket004")
pocket5.Profile = sketch10
pocket5.Type = "ThroughAll"

# Sketch on XY plane
sketch11 = body.newObject("Sketcher::SketchObject", "Sketch010")
sketch11.AttachmentSupport = (doc.getObject("XY_Plane"), [""])
sketch11.MapMode = "FlatFace"
sketch11.addGeometry(Part.LineSegment(Vector(40, 25, 0), Vector(45, 20, 0)), False)
sketch11.addGeometry(Part.LineSegment(Vector(45, 20, 0), Vector(20, 20, 0)), False)
sketch11.addGeometry(Part.LineSegment(Vector(20, 20, 0), Vector(20, 45, 0)), False)
sketch11.addGeometry(Part.LineSegment(Vector(20, 45, 0), Vector(25, 40, 0)), False)
sketch11.addGeometry(Part.LineSegment(Vector(25, 40, 0), Vector(25, 25, 0)), False)
sketch11.addGeometry(Part.LineSegment(Vector(25, 25, 0), Vector(40, 25, 0)), False)
sketch11.addConstraint(Sketcher.Constraint("Coincident", 0, 2, 1, 1))
sketch11.addConstraint(Sketcher.Constraint("Coincident", 1, 2, 2, 1))
sketch11.addConstraint(Sketcher.Constraint("Coincident", 2, 2, 3, 1))
sketch11.addConstraint(Sketcher.Constraint("Coincident", 3, 2, 4, 1))
sketch11.addConstraint(Sketcher.Constraint("Coincident", 4, 2, 5, 1))
sketch11.addConstraint(Sketcher.Constraint("Coincident", 5, 2, 0, 1))
sketch11.addConstraint(Sketcher.Constraint("Horizontal", 1))
sketch11.addConstraint(Sketcher.Constraint("Vertical", 2))
sketch11.addConstraint(Sketcher.Constraint("Vertical", 4))
sketch11.addConstraint(Sketcher.Constraint("Horizontal", 5))
sketch11.addConstraint(Sketcher.Constraint("Parallel", 0, 3))
sketch11.addConstraint(Sketcher.Constraint("Equal", 1, 2))
sketch11.addConstraint(Sketcher.Constraint("Equal", 5, 4))
sketch11.addConstraint(Sketcher.Constraint("Equal", 0, 3))
sketch11.addConstraint(Sketcher.Constraint("DistanceX", 1, 2, 1, 1, Q("25 mm")))
sketch11.addConstraint(Sketcher.Constraint("DistanceX", 5, 1, 5, 2, Q("15 mm")))
sketch11.addConstraint(Sketcher.Constraint("DistanceX", -1, 1, 0, 2, Q("45 mm")))
sketch11.addConstraint(Sketcher.Constraint("DistanceY", -1, 1, 0, 2, Q("20 mm")))
pad6 = body.newObject("PartDesign::Pad", "Pad005")
pad6.Profile = sketch11
pad6.Length = 20
pad6.Reversed = True

# Sketch on XZ plane
sketch12 = body.newObject("Sketcher::SketchObject", "Sketch011")
sketch12.AttachmentSupport = (doc.getObject("XZ_Plane"), [""])
sketch12.MapMode = "FlatFace"
sketch12.AttachmentOffset = App.Placement(Vector(0, 0, -20), App.Rotation())
sketch12.addGeometry(Part.LineSegment(Vector(45, -12.71, 0), Vector(45, -7.29, 0)), False)
sketch12.addGeometry(Part.LineSegment(Vector(45, -7.29, 0), Vector(20, -7.29, 0)), False)
sketch12.addGeometry(Part.LineSegment(Vector(20, -7.29, 0), Vector(20, -12.71, 0)), False)
sketch12.addGeometry(Part.LineSegment(Vector(20, -12.71, 0), Vector(45, -12.71, 0)), False)
sketch12.addConstraint(Sketcher.Constraint("Coincident", 0, 2, 1, 1))
sketch12.addConstraint(Sketcher.Constraint("Coincident", 1, 2, 2, 1))
sketch12.addConstraint(Sketcher.Constraint("Coincident", 2, 2, 3, 1))
sketch12.addConstraint(Sketcher.Constraint("Coincident", 3, 2, 0, 1))
sketch12.addConstraint(Sketcher.Constraint("Vertical", 0))
sketch12.addConstraint(Sketcher.Constraint("Horizontal", 1))
sketch12.addConstraint(Sketcher.Constraint("Vertical", 2))
sketch12.addConstraint(Sketcher.Constraint("Horizontal", 3))
sketch12.addConstraint(Sketcher.Constraint("DistanceX", 1, 2, 1, 1, Q("25 mm")))
sketch12.addConstraint(Sketcher.Constraint("DistanceX", -1, 1, 0, 2, Q("45 mm")))
sketch12.addConstraint(Sketcher.Constraint("DistanceY", 0, 1, 0, 2, Q("5.42 mm")))
sketch12.addConstraint(Sketcher.Constraint("DistanceY", 0, 2, -1, 1, Q("7.29 mm")))
pad7 = body.newObject("PartDesign::Pad", "Pad006")
pad7.Profile = sketch12
pad7.Length = 2

# Sketch on YZ plane
sketch13 = body.newObject("Sketcher::SketchObject", "Sketch012")
sketch13.AttachmentSupport = (doc.getObject("YZ_Plane"), [""])
sketch13.MapMode = "FlatFace"
sketch13.AttachmentOffset = App.Placement(Vector(0, 0, 20), App.Rotation())
sketch13.addGeometry(Part.LineSegment(Vector(45, -7.29, 0), Vector(45, -12.71, 0)), False)
sketch13.addGeometry(Part.LineSegment(Vector(45, -12.71, 0), Vector(18, -12.71, 0)), False)
sketch13.addGeometry(Part.LineSegment(Vector(18, -12.71, 0), Vector(18, -7.29, 0)), False)
sketch13.addGeometry(Part.LineSegment(Vector(18, -7.29, 0), Vector(45, -7.29, 0)), False)
sketch13.addConstraint(Sketcher.Constraint("Coincident", 0, 2, 1, 1))
sketch13.addConstraint(Sketcher.Constraint("Coincident", 1, 2, 2, 1))
sketch13.addConstraint(Sketcher.Constraint("Coincident", 2, 2, 3, 1))
sketch13.addConstraint(Sketcher.Constraint("Coincident", 3, 2, 0, 1))
sketch13.addConstraint(Sketcher.Constraint("Vertical", 0))
sketch13.addConstraint(Sketcher.Constraint("Horizontal", 1))
sketch13.addConstraint(Sketcher.Constraint("Vertical", 2))
sketch13.addConstraint(Sketcher.Constraint("Horizontal", 3))
sketch13.addConstraint(Sketcher.Constraint("DistanceX", 1, 2, 1, 1, Q("27 mm")))
sketch13.addConstraint(Sketcher.Constraint("DistanceX", -1, 1, 0, 2, Q("45 mm")))
sketch13.addConstraint(Sketcher.Constraint("DistanceY", 0, 2, 0, 1, Q("5.42 mm")))
sketch13.addConstraint(Sketcher.Constraint("DistanceY", 0, 2, -1, 1, Q("12.71 mm")))
pad8 = body.newObject("PartDesign::Pad", "Pad007")
pad8.Profile = sketch13
pad8.Length = 2
pad8.Reversed = True

# Sketch on YZ plane
sketch14 = body.newObject("Sketcher::SketchObject", "Sketch013")
sketch14.AttachmentSupport = (doc.getObject("YZ_Plane"), [""])
sketch14.MapMode = "FlatFace"
sketch14.AttachmentOffset = App.Placement(Vector(0, 0, 25), App.Rotation())
sketch14.addGeometry(Part.Circle(Vector(35, -10, 0), Vector(0, 0, 1), 2.25), False)
sketch14.addConstraint(Sketcher.Constraint("Diameter", 0, Q("4.5 mm")))
sketch14.addConstraint(Sketcher.Constraint("DistanceX", -1, 1, 0, 3, Q("35 mm")))
sketch14.addConstraint(Sketcher.Constraint("DistanceY", 0, 3, -1, 1, Q("10 mm")))
pocket6 = body.newObject("PartDesign::Pocket", "Pocket005")
pocket6.Profile = sketch14
pocket6.Type = "ThroughAll"

# Sketch on XZ plane
sketch15 = body.newObject("Sketcher::SketchObject", "Sketch014")
sketch15.AttachmentSupport = (doc.getObject("XZ_Plane"), [""])
sketch15.MapMode = "FlatFace"
sketch15.AttachmentOffset = App.Placement(Vector(0, 0, -25), App.Rotation())
sketch15.addGeometry(Part.Circle(Vector(35, -10, 0), Vector(0, 0, 1), 2.25), False)
sketch15.addConstraint(Sketcher.Constraint("Diameter", 0, Q("4.5 mm")))
sketch15.addConstraint(Sketcher.Constraint("DistanceX", -1, 1, 0, 3, Q("35 mm")))
sketch15.addConstraint(Sketcher.Constraint("DistanceY", 0, 3, -1, 1, Q("10 mm")))
pocket7 = body.newObject("PartDesign::Pocket", "Pocket006")
pocket7.Profile = sketch15
pocket7.Type = "ThroughAll"
pocket7.Reversed = True

# Sketch on XZ plane
sketch16 = body.newObject("Sketcher::SketchObject", "Sketch015")
sketch16.AttachmentSupport = (doc.getObject("XZ_Plane"), [""])
sketch16.MapMode = "FlatFace"
sketch16.AttachmentOffset = App.Placement(Vector(0, 0, -25), App.Rotation())
sketch16.addGeometry(Part.Circle(Vector(35, -10, 0), Vector(0, 0, 1), 3.75), False)
sketch16.addConstraint(Sketcher.Constraint("Diameter", 0, Q("7.5 mm")))
sketch16.addConstraint(Sketcher.Constraint("DistanceX", -1, 1, 0, 3, Q("35 mm")))
sketch16.addConstraint(Sketcher.Constraint("DistanceY", 0, 3, -1, 1, Q("10 mm")))
pocket8 = body.newObject("PartDesign::Pocket", "Pocket007")
pocket8.Profile = sketch16
pocket8.Length = 2
pocket8.Reversed = True

# Sketch on YZ plane
sketch17 = body.newObject("Sketcher::SketchObject", "Sketch016")
sketch17.AttachmentSupport = (doc.getObject("YZ_Plane"), [""])
sketch17.MapMode = "FlatFace"
sketch17.AttachmentOffset = App.Placement(Vector(0, 0, 25), App.Rotation())
sketch17.addGeometry(Part.Circle(Vector(35, -10, 0), Vector(0, 0, 1), 3.75), False)
sketch17.addConstraint(Sketcher.Constraint("Diameter", 0, Q("7.5 mm")))
sketch17.addConstraint(Sketcher.Constraint("DistanceX", -1, 1, 0, 3, Q("35 mm")))
sketch17.addConstraint(Sketcher.Constraint("DistanceY", 0, 3, -1, 1, Q("10 mm")))
pocket9 = body.newObject("PartDesign::Pocket", "Pocket008")
pocket9.Profile = sketch17
pocket9.Length = 2

# Sketch on XZ plane
sketch18 = body.newObject("Sketcher::SketchObject", "Sketch017")
sketch18.AttachmentSupport = (doc.getObject("XZ_Plane"), [""])
sketch18.MapMode = "FlatFace"
sketch18.AttachmentOffset = App.Placement(Vector(0, 0, -25), App.Rotation())
sketch18.addGeometry(Part.Circle(Vector(10, 23, 0), Vector(0, 0, 1), 3.75), False)
sketch18.addConstraint(Sketcher.Constraint("Diameter", 0, Q("7.5 mm")))
sketch18.addConstraint(Sketcher.Constraint("DistanceX", -1, 1, 0, 3, Q("10 mm")))
sketch18.addConstraint(Sketcher.Constraint("DistanceY", -1, 1, 0, 3, Q("23 mm")))
pocket10 = body.newObject("PartDesign::Pocket", "Pocket009")
pocket10.Profile = sketch18
pocket10.Length = 2
pocket10.Reversed = True

# Sketch on YZ plane
sketch19 = body.newObject("Sketcher::SketchObject", "Sketch018")
sketch19.AttachmentSupport = (doc.getObject("YZ_Plane"), [""])
sketch19.MapMode = "FlatFace"
sketch19.AttachmentOffset = App.Placement(Vector(0, 0, 25), App.Rotation())
sketch19.addGeometry(Part.Circle(Vector(10, 23, 0), Vector(0, 0, 1), 3.75), False)
sketch19.addConstraint(Sketcher.Constraint("Diameter", 0, Q("7.5 mm")))
sketch19.addConstraint(Sketcher.Constraint("DistanceX", -1, 1, 0, 3, Q("10 mm")))
sketch19.addConstraint(Sketcher.Constraint("DistanceY", -1, 1, 0, 3, Q("23 mm")))
pocket11 = body.newObject("PartDesign::Pocket", "Pocket010")
pocket11.Profile = sketch19
pocket11.Length = 2

# Sketch on XY plane
sketch20 = body.newObject("Sketcher::SketchObject", "Sketch019")
sketch20.AttachmentSupport = (doc.getObject("XY_Plane"), [""])
sketch20.MapMode = "FlatFace"
sketch20.AttachmentOffset = App.Placement(Vector(0, 0, 5), App.Rotation())
sketch20.addGeometry(Part.Circle(Vector(38, 10, 0), Vector(0, 0, 1), 3.75), False)
sketch20.addConstraint(Sketcher.Constraint("Diameter", 0, Q("7.5 mm")))
sketch20.addConstraint(Sketcher.Constraint("DistanceX", -1, 1, 0, 3, Q("38 mm")))
sketch20.addConstraint(Sketcher.Constraint("DistanceY", -1, 1, 0, 3, Q("10 mm")))
pocket12 = body.newObject("PartDesign::Pocket", "Pocket011")
pocket12.Profile = sketch20
pocket12.Length = 2

# Sketch on XY plane
sketch21 = body.newObject("Sketcher::SketchObject", "Sketch020")
sketch21.AttachmentSupport = (doc.getObject("XY_Plane"), [""])
sketch21.MapMode = "FlatFace"
sketch21.AttachmentOffset = App.Placement(Vector(0, 0, 5), App.Rotation())
sketch21.addGeometry(Part.Circle(Vector(10, 38, 0), Vector(0, 0, 1), 3.75), False)
sketch21.addConstraint(Sketcher.Constraint("Diameter", 0, Q("7.5 mm")))
sketch21.addConstraint(Sketcher.Constraint("DistanceX", -1, 1, 0, 3, Q("10 mm")))
sketch21.addConstraint(Sketcher.Constraint("DistanceY", -1, 1, 0, 3, Q("38 mm")))
pocket13 = body.newObject("PartDesign::Pocket", "Pocket012")
pocket13.Profile = sketch21
pocket13.Length = 2

# Sketch on XY plane
sketch22 = body.newObject("Sketcher::SketchObject", "Sketch021")
sketch22.AttachmentSupport = (doc.getObject("XY_Plane"), [""])
sketch22.MapMode = "FlatFace"
sketch22.AttachmentOffset = App.Placement(Vector(0, 0, -7.29), App.Rotation())
sketch22.addGeometry(Part.LineSegment(Vector(18, 20, 0), Vector(18, 18, 0)), False)
sketch22.addGeometry(Part.LineSegment(Vector(18, 18, 0), Vector(20, 18, 0)), False)
sketch22.addGeometry(Part.LineSegment(Vector(20, 18, 0), Vector(20, 20, 0)), False)
sketch22.addGeometry(Part.LineSegment(Vector(20, 20, 0), Vector(18, 20, 0)), False)
sketch22.addConstraint(Sketcher.Constraint("Coincident", 0, 2, 1, 1))
sketch22.addConstraint(Sketcher.Constraint("Coincident", 1, 2, 2, 1))
sketch22.addConstraint(Sketcher.Constraint("Coincident", 2, 2, 3, 1))
sketch22.addConstraint(Sketcher.Constraint("Coincident", 3, 2, 0, 1))
sketch22.addConstraint(Sketcher.Constraint("Vertical", 0))
sketch22.addConstraint(Sketcher.Constraint("Horizontal", 1))
sketch22.addConstraint(Sketcher.Constraint("Vertical", 2))
sketch22.addConstraint(Sketcher.Constraint("Horizontal", 3))
sketch22.addConstraint(Sketcher.Constraint("Equal", 3, 0))
sketch22.addConstraint(Sketcher.Constraint("DistanceX", 1, 1, 1, 2, Q("2 mm")))
sketch22.addConstraint(Sketcher.Constraint("DistanceX", -1, 1, 0, 2, Q("18 mm")))
sketch22.addConstraint(Sketcher.Constraint("DistanceY", -1, 1, 0, 2, Q("18 mm")))
pocket14 = body.newObject("PartDesign::Pocket", "Pocket013")
pocket14.Profile = sketch22
pocket14.Type = "ThroughAll"

# Sketch on YZ plane
sketch23 = body.newObject("Sketcher::SketchObject", "Sketch022")
sketch23.AttachmentSupport = (doc.getObject("YZ_Plane"), [""])
sketch23.MapMode = "FlatFace"
sketch23.AttachmentOffset = App.Placement(Vector(0, 0, 12.71), App.Rotation())
sketch23.addGeometry(Part.LineSegment(Vector(18, 0, 0), Vector(18, -2, 0)), False)
sketch23.addGeometry(Part.LineSegment(Vector(18, -2, 0), Vector(20, -2, 0)), False)
sketch23.addGeometry(Part.LineSegment(Vector(20, -2, 0), Vector(20, 0, 0)), False)
sketch23.addGeometry(Part.LineSegment(Vector(20, 0, 0), Vector(18, 0, 0)), False)
sketch23.addConstraint(Sketcher.Constraint("Coincident", 0, 2, 1, 1))
sketch23.addConstraint(Sketcher.Constraint("Coincident", 1, 2, 2, 1))
sketch23.addConstraint(Sketcher.Constraint("Coincident", 2, 2, 3, 1))
sketch23.addConstraint(Sketcher.Constraint("Coincident", 3, 2, 0, 1))
sketch23.addConstraint(Sketcher.Constraint("Vertical", 0))
sketch23.addConstraint(Sketcher.Constraint("Horizontal", 1))
sketch23.addConstraint(Sketcher.Constraint("Vertical", 2))
sketch23.addConstraint(Sketcher.Constraint("Horizontal", 3))
sketch23.addConstraint(Sketcher.Constraint("PointOnObject", 2, 2, -1))
sketch23.addConstraint(Sketcher.Constraint("Equal", 3, 0))
sketch23.addConstraint(Sketcher.Constraint("DistanceX", 1, 1, 1, 2, Q("2 mm")))
sketch23.addConstraint(Sketcher.Constraint("DistanceX", -1, 1, 0, 2, Q("18 mm")))
pocket15 = body.newObject("PartDesign::Pocket", "Pocket014")
pocket15.Profile = sketch23
pocket15.Type = "ThroughAll"

# Sketch on XZ plane
sketch24 = body.newObject("Sketcher::SketchObject", "Sketch023")
sketch24.AttachmentSupport = (doc.getObject("XZ_Plane"), [""])
sketch24.MapMode = "FlatFace"
sketch24.AttachmentOffset = App.Placement(Vector(0, 0, -12.71), App.Rotation())
sketch24.addGeometry(Part.LineSegment(Vector(20, 0, 0), Vector(20, -2, 0)), False)
sketch24.addGeometry(Part.LineSegment(Vector(20, -2, 0), Vector(18, -2, 0)), False)
sketch24.addGeometry(Part.LineSegment(Vector(18, -2, 0), Vector(18, 0, 0)), False)
sketch24.addGeometry(Part.LineSegment(Vector(18, 0, 0), Vector(20, 0, 0)), False)
sketch24.addConstraint(Sketcher.Constraint("Coincident", 0, 2, 1, 1))
sketch24.addConstraint(Sketcher.Constraint("Coincident", 1, 2, 2, 1))
sketch24.addConstraint(Sketcher.Constraint("Coincident", 2, 2, 3, 1))
sketch24.addConstraint(Sketcher.Constraint("Coincident", 3, 2, 0, 1))
sketch24.addConstraint(Sketcher.Constraint("Vertical", 0))
sketch24.addConstraint(Sketcher.Constraint("Horizontal", 1))
sketch24.addConstraint(Sketcher.Constraint("Vertical", 2))
sketch24.addConstraint(Sketcher.Constraint("Horizontal", 3))
sketch24.addConstraint(Sketcher.Constraint("PointOnObject", 2, 2, -1))
sketch24.addConstraint(Sketcher.Constraint("Equal", 3, 0))
sketch24.addConstraint(Sketcher.Constraint("DistanceX", 1, 2, 1, 1, Q("2 mm")))
sketch24.addConstraint(Sketcher.Constraint("DistanceX", -1, 1, 0, 2, Q("20 mm")))
pocket16 = body.newObject("PartDesign::Pocket", "Pocket015")
pocket16.Profile = sketch24
pocket16.Type = "ThroughAll"
pocket16.Reversed = True

doc.recompute()
